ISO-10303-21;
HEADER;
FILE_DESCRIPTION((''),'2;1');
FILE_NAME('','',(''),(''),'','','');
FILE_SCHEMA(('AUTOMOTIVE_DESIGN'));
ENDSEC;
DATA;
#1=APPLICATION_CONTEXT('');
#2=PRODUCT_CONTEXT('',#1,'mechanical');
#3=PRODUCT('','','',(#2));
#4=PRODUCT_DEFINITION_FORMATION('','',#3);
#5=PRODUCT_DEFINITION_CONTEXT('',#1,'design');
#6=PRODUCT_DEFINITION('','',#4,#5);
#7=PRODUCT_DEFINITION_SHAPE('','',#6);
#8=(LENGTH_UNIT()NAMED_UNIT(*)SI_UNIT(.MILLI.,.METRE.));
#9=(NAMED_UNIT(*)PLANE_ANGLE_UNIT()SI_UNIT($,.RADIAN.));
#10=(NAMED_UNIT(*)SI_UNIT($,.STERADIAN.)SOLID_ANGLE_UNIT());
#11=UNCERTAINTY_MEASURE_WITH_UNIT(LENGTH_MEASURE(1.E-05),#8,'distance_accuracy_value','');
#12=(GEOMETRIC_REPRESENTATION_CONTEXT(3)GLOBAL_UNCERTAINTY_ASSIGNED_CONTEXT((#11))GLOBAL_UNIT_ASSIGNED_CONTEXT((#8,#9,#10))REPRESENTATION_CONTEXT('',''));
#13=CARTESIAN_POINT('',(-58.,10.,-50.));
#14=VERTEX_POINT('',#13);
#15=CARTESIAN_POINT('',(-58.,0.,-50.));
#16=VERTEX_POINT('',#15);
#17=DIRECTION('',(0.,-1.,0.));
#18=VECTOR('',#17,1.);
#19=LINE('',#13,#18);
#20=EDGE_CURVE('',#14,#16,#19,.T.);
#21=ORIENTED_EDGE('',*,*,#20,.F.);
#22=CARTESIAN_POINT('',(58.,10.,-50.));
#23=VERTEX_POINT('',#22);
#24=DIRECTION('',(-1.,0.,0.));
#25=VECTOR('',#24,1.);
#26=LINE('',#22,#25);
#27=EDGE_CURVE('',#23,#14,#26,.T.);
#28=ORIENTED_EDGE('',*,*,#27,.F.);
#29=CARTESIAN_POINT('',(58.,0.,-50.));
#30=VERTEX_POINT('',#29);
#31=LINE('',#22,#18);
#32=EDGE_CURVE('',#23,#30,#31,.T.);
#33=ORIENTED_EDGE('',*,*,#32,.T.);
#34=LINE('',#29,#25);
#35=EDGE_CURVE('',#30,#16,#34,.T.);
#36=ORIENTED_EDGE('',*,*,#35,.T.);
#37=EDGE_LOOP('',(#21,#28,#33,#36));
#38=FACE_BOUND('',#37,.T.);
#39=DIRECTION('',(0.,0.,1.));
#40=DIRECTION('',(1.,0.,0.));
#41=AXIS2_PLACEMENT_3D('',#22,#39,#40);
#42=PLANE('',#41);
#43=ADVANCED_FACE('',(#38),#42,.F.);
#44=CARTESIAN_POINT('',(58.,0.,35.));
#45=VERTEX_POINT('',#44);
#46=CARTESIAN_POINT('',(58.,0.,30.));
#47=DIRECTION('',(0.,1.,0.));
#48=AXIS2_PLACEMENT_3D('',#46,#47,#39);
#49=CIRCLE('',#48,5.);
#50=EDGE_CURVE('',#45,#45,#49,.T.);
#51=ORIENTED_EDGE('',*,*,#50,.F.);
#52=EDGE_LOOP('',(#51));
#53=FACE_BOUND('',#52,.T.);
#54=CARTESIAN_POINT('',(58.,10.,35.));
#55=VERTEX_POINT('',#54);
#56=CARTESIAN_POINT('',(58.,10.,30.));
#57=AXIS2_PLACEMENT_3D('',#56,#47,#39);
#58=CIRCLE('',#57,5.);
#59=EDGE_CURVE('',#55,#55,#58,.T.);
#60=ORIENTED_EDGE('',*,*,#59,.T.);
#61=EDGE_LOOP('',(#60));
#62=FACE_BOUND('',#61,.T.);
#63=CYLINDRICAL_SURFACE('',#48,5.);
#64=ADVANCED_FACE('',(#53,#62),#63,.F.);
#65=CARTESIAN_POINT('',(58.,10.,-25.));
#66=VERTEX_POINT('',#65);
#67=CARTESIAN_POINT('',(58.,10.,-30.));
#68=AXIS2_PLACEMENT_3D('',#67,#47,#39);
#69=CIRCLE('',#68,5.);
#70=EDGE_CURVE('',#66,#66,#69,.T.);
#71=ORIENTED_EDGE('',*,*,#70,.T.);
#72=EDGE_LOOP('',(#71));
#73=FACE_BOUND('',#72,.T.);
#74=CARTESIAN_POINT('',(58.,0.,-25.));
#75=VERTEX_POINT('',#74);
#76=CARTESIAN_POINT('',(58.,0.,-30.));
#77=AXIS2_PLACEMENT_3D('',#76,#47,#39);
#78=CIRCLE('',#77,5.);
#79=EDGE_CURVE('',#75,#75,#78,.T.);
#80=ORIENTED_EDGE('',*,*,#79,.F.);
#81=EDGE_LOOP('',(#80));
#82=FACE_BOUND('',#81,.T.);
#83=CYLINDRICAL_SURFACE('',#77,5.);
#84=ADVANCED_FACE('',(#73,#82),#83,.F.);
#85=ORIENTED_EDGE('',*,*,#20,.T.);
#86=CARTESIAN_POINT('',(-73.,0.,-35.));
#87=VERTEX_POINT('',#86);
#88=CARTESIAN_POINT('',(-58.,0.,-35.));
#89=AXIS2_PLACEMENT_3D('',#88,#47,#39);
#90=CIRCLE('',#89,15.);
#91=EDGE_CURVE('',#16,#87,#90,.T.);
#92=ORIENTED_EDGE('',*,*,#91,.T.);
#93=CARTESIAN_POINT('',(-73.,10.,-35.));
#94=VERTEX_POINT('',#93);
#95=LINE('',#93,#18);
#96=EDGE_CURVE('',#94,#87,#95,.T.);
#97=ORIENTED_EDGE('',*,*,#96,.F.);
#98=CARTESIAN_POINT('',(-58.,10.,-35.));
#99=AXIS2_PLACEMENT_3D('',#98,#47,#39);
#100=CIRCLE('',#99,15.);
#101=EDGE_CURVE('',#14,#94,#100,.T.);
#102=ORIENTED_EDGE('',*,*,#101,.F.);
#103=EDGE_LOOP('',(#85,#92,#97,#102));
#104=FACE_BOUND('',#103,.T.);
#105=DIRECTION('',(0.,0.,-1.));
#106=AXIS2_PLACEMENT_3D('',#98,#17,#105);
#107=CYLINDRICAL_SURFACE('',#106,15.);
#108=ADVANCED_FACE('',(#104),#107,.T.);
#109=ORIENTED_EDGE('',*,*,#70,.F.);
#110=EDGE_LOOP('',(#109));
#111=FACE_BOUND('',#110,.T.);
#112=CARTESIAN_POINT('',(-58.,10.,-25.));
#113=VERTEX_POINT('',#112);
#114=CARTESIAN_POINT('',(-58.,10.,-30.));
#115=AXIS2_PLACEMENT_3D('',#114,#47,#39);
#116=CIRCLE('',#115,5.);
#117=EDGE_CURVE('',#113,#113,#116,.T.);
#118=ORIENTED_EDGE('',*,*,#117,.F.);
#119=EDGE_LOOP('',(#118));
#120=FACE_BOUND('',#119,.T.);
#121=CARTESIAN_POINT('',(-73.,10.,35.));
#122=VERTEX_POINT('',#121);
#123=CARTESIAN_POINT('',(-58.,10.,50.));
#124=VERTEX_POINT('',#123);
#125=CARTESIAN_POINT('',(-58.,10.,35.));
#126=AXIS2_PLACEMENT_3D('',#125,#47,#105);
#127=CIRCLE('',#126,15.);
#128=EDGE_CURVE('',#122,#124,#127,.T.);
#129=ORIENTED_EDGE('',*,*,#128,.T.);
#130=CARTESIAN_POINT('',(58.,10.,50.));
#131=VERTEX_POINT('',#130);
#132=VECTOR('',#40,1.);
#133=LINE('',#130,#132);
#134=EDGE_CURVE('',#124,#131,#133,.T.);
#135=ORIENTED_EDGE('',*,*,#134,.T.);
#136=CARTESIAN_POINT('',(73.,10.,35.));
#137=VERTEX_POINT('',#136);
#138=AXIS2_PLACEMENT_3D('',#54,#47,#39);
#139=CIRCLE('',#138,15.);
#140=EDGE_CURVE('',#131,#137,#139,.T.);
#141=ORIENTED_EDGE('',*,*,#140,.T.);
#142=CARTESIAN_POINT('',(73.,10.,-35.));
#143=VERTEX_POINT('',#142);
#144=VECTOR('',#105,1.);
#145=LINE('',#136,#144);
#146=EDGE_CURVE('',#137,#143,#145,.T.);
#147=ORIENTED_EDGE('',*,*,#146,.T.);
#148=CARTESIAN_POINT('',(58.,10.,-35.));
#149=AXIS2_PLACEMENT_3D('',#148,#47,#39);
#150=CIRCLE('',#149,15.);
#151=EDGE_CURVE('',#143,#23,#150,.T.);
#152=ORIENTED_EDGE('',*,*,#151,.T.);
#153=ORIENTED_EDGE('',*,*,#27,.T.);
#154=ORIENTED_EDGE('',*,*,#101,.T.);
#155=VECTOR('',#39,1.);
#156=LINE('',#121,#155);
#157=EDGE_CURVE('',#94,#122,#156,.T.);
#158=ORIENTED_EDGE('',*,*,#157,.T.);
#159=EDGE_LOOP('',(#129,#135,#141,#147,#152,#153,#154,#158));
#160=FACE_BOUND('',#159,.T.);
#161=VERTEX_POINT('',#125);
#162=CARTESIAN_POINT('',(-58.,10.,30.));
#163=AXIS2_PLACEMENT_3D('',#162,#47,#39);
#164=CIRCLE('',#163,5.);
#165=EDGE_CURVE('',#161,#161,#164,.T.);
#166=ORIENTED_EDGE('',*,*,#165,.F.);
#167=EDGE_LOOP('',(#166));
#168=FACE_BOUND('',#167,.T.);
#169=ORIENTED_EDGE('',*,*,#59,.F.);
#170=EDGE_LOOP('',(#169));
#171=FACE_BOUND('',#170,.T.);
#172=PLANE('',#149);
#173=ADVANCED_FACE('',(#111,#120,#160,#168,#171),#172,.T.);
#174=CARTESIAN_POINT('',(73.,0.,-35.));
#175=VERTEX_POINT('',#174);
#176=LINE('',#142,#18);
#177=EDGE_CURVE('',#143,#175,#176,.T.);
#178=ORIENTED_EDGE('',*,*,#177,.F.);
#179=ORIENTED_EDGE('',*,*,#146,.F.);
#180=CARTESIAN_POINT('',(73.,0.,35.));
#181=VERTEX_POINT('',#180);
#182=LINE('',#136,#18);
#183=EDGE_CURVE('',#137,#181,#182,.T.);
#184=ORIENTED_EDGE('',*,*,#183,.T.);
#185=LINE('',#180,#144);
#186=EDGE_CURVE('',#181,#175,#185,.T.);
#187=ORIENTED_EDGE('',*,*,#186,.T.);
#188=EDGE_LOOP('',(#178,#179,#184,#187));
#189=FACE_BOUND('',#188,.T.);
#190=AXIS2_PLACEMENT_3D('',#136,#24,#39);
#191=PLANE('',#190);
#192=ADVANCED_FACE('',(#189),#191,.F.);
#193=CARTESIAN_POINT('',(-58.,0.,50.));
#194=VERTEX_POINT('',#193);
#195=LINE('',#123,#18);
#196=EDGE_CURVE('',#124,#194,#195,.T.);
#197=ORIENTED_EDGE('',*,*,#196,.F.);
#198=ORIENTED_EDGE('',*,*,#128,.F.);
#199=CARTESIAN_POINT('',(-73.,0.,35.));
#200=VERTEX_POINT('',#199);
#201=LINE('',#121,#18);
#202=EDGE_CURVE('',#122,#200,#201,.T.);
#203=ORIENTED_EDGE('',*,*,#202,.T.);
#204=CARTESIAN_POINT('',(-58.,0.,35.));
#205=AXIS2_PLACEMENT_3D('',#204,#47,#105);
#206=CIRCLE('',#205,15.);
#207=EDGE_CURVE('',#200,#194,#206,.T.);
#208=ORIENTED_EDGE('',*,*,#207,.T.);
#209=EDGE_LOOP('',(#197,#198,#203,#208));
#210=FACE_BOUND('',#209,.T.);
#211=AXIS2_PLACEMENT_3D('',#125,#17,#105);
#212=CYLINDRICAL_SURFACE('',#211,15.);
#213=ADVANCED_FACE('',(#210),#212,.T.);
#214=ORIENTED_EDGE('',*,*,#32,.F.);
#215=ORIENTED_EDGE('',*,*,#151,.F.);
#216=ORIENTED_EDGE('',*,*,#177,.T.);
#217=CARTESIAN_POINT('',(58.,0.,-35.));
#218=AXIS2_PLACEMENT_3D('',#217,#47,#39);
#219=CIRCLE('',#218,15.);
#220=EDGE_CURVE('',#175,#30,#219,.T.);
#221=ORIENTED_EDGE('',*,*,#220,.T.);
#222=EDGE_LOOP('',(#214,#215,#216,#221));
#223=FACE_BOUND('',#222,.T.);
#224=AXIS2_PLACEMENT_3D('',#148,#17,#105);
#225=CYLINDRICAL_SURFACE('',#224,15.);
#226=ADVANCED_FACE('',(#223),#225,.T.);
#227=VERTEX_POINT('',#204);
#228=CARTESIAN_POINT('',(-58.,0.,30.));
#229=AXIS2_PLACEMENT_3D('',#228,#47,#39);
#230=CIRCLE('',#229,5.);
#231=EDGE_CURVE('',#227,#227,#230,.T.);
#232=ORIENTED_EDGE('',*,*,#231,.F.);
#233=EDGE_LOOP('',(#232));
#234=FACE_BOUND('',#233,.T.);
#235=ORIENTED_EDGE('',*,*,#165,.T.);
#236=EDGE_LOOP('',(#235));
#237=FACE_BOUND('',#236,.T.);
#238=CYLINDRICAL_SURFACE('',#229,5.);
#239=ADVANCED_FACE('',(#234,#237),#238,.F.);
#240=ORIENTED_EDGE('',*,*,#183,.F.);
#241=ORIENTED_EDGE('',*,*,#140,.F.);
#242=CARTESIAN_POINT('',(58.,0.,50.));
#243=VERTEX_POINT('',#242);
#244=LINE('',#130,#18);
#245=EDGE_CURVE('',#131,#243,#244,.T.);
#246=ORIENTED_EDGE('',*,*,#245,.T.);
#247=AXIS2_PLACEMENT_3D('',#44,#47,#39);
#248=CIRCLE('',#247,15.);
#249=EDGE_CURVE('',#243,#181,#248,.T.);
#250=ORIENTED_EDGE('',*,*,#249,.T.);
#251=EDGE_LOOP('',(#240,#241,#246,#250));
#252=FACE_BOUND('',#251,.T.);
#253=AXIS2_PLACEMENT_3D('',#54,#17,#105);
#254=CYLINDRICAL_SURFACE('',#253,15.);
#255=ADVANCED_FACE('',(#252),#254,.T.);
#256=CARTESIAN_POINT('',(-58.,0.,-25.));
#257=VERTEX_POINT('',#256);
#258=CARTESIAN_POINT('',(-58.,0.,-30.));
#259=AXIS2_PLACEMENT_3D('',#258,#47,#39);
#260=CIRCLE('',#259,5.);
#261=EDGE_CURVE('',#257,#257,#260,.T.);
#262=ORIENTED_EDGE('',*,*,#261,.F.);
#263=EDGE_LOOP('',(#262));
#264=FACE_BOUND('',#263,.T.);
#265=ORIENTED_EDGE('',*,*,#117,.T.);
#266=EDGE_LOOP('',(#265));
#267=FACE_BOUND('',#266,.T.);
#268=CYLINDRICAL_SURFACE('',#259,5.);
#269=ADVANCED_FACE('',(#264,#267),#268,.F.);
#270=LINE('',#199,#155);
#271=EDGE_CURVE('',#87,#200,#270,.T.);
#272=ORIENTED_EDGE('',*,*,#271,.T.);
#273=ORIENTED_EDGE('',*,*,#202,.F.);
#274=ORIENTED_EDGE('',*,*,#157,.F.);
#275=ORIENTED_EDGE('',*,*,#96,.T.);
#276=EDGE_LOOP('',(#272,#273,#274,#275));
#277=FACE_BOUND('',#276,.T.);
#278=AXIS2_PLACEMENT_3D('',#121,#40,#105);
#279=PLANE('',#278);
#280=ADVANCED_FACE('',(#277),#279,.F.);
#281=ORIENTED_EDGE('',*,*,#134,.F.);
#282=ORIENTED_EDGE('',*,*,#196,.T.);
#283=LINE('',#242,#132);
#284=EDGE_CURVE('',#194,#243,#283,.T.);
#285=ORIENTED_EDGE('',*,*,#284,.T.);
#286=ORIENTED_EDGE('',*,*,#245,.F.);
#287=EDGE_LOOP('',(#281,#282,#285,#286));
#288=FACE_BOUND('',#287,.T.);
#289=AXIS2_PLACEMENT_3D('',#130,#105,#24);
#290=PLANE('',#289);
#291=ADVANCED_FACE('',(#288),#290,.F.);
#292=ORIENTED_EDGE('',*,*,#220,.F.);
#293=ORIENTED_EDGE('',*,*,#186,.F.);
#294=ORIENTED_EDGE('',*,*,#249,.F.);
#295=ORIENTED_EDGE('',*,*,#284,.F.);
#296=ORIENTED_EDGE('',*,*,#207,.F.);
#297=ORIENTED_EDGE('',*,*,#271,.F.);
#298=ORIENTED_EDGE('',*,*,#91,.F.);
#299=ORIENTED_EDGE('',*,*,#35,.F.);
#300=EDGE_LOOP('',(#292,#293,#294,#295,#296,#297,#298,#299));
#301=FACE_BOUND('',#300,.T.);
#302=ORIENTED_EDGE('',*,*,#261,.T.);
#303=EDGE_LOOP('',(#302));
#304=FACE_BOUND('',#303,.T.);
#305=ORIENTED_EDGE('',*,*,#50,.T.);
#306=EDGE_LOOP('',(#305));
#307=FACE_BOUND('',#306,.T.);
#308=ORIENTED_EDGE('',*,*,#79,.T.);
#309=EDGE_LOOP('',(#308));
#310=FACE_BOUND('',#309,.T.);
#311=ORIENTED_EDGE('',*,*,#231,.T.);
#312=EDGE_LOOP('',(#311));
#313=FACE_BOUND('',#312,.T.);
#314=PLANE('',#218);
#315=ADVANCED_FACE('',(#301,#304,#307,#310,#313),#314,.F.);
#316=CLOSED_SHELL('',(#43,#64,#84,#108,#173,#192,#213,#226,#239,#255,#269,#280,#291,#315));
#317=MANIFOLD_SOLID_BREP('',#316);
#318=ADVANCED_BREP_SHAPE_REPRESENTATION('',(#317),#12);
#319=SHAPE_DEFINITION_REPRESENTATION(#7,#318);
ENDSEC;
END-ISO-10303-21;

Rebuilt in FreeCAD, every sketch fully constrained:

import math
import FreeCAD as App
import Part
import Sketcher
from FreeCAD import Vector
Q = App.Units.Quantity

doc = App.newDocument("Part")
body = doc.addObject("PartDesign::Body", "Body")

# Sketch on XZ plane
sketch1 = body.newObject("Sketcher::SketchObject", "Sketch")
sketch1.AttachmentSupport = (doc.getObject("XZ_Plane"), [""])
sketch1.MapMode = "FlatFace"
sketch1.addGeometry(Part.LineSegment(Vector(-58, 50, 0), Vector(58, 50, 0)), False)
sketch1.addGeometry(Part.ArcOfCircle(Part.Circle(Vector(58, 35, 0), Vector(0, 0, 1), 15), math.radians(0), math.radians(90)), False)
sketch1.addGeometry(Part.LineSegment(Vector(73, 35, 0), Vector(73, -35, 0)), False)
sketch1.addGeometry(Part.ArcOfCircle(Part.Circle(Vector(58, -35, 0), Vector(0, 0, 1), 15), math.radians(-90), math.radians(0)), False)
sketch1.addGeometry(Part.LineSegment(Vector(58, -50, 0), Vector(-58, -50, 0)), False)
sketch1.addGeometry(Part.ArcOfCircle(Part.Circle(Vector(-58, -35, 0), Vector(0, 0, 1), 15), math.radians(180), math.radians(270)), False)
sketch1.addGeometry(Part.LineSegment(Vector(-73, -35, 0), Vector(-73, 35, 0)), False)
sketch1.addGeometry(Part.ArcOfCircle(Part.Circle(Vector(-58, 35, 0), Vector(0, 0, 1), 15), math.radians(90), math.radians(180)), False)
sketch1.addConstraint(Sketcher.Constraint("Tangent", 0, 2, 1, 2))
sketch1.addConstraint(Sketcher.Constraint("Tangent", 1, 1, 2, 1))
sketch1.addConstraint(Sketcher.Constraint("Tangent", 2, 2, 3, 2))
sketch1.addConstraint(Sketcher.Constraint("Tangent", 3, 1, 4, 1))
sketch1.addConstraint(Sketcher.Constraint("Tangent", 4, 2, 5, 2))
sketch1.addConstraint(Sketcher.Constraint("Tangent", 5, 1, 6, 1))
sketch1.addConstraint(Sketcher.Constraint("Tangent", 6, 2, 7, 2))
sketch1.addConstraint(Sketcher.Constraint("Tangent", 7, 1, 0, 1))
sketch1.addConstraint(Sketcher.Constraint("Horizontal", 0))
sketch1.addConstraint(Sketcher.Constraint("Vertical", 2))
sketch1.addConstraint(Sketcher.Constraint("Horizontal", 4))
sketch1.addConstraint(Sketcher.Constraint("Vertical", 6))
sketch1.addConstraint(Sketcher.Constraint("Equal", 1, 3))
sketch1.addConstraint(Sketcher.Constraint("Equal", 3, 5))
sketch1.addConstraint(Sketcher.Constraint("Equal", 5, 7))
sketch1.addConstraint(Sketcher.Constraint("Symmetric", 1, 3, 5, 3, -1, 1))
sketch1.addConstraint(Sketcher.Constraint("Radius", 1, Q("15 mm")))
sketch1.addConstraint(Sketcher.Constraint("DistanceX", 0, 1, 0, 2, Q("116 mm")))
sketch1.addConstraint(Sketcher.Constraint("DistanceY", 2, 2, 2, 1, Q("70 mm")))
pad1 = body.newObject("PartDesign::Pad", "Pad")
pad1.Profile = sketch1
pad1.Length = 10
pad1.Reversed = True

# Sketch on XZ plane
sketch2 = body.newObject("Sketcher::SketchObject", "Sketch001")
sketch2.AttachmentSupport = (doc.getObject("XZ_Plane"), [""])
sketch2.MapMode = "FlatFace"
sketch2.AttachmentOffset = App.Placement(Vector(0, 0, -10), App.Rotation())
sketch2.addGeometry(Part.Circle(Vector(-58, -30, 0), Vector(0, 0, 1), 5), False)
sketch2.addConstraint(Sketcher.Constraint("Diameter", 0, Q("10 mm")))
sketch2.addConstraint(Sketcher.Constraint("DistanceX", 0, 3, -1, 1, Q("58 mm")))
sketch2.addConstraint(Sketcher.Constraint("DistanceY", 0, 3, -1, 1, Q("30 mm")))
pocket1 = body.newObject("PartDesign::Pocket", "Pocket")
pocket1.Profile = sketch2
pocket1.Length = 10
pocket1.Reversed = True
doc.recompute()

linearpattern = body.newObject("PartDesign::LinearPattern", "LinearPattern")
linearpattern.Originals = [pocket1]
linearpattern.Direction = (doc.getObject("X_Axis"), [""])
linearpattern.Mode = "offset"
linearpattern.Offset = 116
linearpattern.Occurrences = 3
body.Tip = linearpattern
doc.recompute()

linearpattern2 = body.newObject("PartDesign::LinearPattern", "LinearPattern001")
linearpattern2.Originals = [pocket1]
linearpattern2.Direction = (doc.getObject("Z_Axis"), [""])
linearpattern2.Mode = "offset"
linearpattern2.Offset = 60
linearpattern2.Occurrences = 3
body.Tip = linearpattern2

# Sketch on XZ plane
sketch3 = body.newObject("Sketcher::SketchObject", "Sketch002")
sketch3.AttachmentSupport = (doc.getObject("XZ_Plane"), [""])
sketch3.MapMode = "FlatFace"
sketch3.AttachmentOffset = App.Placement(Vector(0, 0, -10), App.Rotation())
sketch3.addGeometry(Part.Circle(Vector(58, 30, 0), Vector(0, 0, 1), 5), False)
sketch3.addConstraint(Sketcher.Constraint("Diameter", 0, Q("10 mm")))
sketch3.addConstraint(Sketcher.Constraint("DistanceX", -1, 1, 0, 3, Q("58 mm")))
sketch3.addConstraint(Sketcher.Constraint("DistanceY", -1, 1, 0, 3, Q("30 mm")))
pocket2 = body.newObject("PartDesign::Pocket", "Pocket001")
pocket2.Profile = sketch3
pocket2.Length = 10
pocket2.Reversed = True

# Sketch on XZ plane
sketch4 = body.newObject("Sketcher::SketchObject", "Sketch003")
sketch4.AttachmentSupport = (doc.getObject("XZ_Plane"), [""])
sketch4.MapMode = "FlatFace"
sketch4.AttachmentOffset = App.Placement(Vector(0, 0, -10), App.Rotation())
sketch4.addGeometry(Part.Circle(Vector(58, 90, 0), Vector(0, 0, 1), 5), False)
sketch4.addConstraint(Sketcher.Constraint("Diameter", 0, Q("10 mm")))
sketch4.addConstraint(Sketcher.Constraint("DistanceX", -1, 1, 0, 3, Q("58 mm")))
sketch4.addConstraint(Sketcher.Constraint("DistanceY", -1, 1, 0, 3, Q("90 mm")))
pocket3 = body.newObject("PartDesign::Pocket", "Pocket002")
pocket3.Profile = sketch4
pocket3.Length = 10
pocket3.Reversed = True

# Sketch on XZ plane
sketch5 = body.newObject("Sketcher::SketchObject", "Sketch004")
sketch5.AttachmentSupport = (doc.getObject("XZ_Plane"), [""])
sketch5.MapMode = "FlatFace"
sketch5.AttachmentOffset = App.Placement(Vector(0, 0, -10), App.Rotation())
sketch5.addGeometry(Part.Circle(Vector(174, 30, 0), Vector(0, 0, 1), 5), False)
sketch5.addConstraint(Sketcher.Constraint("Diameter", 0, Q("10 mm")))
sketch5.addConstraint(Sketcher.Constraint("DistanceX", -1, 1, 0, 3, Q("174 mm")))
sketch5.addConstraint(Sketcher.Constraint("DistanceY", -1, 1, 0, 3, Q("30 mm")))
pocket4 = body.newObject("PartDesign::Pocket", "Pocket003")
pocket4.Profile = sketch5
pocket4.Length = 10
pocket4.Reversed = True

# Sketch on XZ plane
sketch6 = body.newObject("Sketcher::SketchObject", "Sketch005")
sketch6.AttachmentSupport = (doc.getObject("XZ_Plane"), [""])
sketch6.MapMode = "FlatFace"
sketch6.AttachmentOffset = App.Placement(Vector(0, 0, -10), App.Rotation())
sketch6.addGeometry(Part.Circle(Vector(174, 90, 0), Vector(0, 0, 1), 5), False)
sketch6.addConstraint(Sketcher.Constraint("Diameter", 0, Q("10 mm")))
sketch6.addConstraint(Sketcher.Constraint("DistanceX", -1, 1, 0, 3, Q("174 mm")))
sketch6.addConstraint(Sketcher.Constraint("DistanceY", -1, 1, 0, 3, Q("90 mm")))
pocket5 = body.newObject("PartDesign::Pocket", "Pocket004")
pocket5.Profile = sketch6
pocket5.Length = 10
pocket5.Reversed = True

doc.recompute()
